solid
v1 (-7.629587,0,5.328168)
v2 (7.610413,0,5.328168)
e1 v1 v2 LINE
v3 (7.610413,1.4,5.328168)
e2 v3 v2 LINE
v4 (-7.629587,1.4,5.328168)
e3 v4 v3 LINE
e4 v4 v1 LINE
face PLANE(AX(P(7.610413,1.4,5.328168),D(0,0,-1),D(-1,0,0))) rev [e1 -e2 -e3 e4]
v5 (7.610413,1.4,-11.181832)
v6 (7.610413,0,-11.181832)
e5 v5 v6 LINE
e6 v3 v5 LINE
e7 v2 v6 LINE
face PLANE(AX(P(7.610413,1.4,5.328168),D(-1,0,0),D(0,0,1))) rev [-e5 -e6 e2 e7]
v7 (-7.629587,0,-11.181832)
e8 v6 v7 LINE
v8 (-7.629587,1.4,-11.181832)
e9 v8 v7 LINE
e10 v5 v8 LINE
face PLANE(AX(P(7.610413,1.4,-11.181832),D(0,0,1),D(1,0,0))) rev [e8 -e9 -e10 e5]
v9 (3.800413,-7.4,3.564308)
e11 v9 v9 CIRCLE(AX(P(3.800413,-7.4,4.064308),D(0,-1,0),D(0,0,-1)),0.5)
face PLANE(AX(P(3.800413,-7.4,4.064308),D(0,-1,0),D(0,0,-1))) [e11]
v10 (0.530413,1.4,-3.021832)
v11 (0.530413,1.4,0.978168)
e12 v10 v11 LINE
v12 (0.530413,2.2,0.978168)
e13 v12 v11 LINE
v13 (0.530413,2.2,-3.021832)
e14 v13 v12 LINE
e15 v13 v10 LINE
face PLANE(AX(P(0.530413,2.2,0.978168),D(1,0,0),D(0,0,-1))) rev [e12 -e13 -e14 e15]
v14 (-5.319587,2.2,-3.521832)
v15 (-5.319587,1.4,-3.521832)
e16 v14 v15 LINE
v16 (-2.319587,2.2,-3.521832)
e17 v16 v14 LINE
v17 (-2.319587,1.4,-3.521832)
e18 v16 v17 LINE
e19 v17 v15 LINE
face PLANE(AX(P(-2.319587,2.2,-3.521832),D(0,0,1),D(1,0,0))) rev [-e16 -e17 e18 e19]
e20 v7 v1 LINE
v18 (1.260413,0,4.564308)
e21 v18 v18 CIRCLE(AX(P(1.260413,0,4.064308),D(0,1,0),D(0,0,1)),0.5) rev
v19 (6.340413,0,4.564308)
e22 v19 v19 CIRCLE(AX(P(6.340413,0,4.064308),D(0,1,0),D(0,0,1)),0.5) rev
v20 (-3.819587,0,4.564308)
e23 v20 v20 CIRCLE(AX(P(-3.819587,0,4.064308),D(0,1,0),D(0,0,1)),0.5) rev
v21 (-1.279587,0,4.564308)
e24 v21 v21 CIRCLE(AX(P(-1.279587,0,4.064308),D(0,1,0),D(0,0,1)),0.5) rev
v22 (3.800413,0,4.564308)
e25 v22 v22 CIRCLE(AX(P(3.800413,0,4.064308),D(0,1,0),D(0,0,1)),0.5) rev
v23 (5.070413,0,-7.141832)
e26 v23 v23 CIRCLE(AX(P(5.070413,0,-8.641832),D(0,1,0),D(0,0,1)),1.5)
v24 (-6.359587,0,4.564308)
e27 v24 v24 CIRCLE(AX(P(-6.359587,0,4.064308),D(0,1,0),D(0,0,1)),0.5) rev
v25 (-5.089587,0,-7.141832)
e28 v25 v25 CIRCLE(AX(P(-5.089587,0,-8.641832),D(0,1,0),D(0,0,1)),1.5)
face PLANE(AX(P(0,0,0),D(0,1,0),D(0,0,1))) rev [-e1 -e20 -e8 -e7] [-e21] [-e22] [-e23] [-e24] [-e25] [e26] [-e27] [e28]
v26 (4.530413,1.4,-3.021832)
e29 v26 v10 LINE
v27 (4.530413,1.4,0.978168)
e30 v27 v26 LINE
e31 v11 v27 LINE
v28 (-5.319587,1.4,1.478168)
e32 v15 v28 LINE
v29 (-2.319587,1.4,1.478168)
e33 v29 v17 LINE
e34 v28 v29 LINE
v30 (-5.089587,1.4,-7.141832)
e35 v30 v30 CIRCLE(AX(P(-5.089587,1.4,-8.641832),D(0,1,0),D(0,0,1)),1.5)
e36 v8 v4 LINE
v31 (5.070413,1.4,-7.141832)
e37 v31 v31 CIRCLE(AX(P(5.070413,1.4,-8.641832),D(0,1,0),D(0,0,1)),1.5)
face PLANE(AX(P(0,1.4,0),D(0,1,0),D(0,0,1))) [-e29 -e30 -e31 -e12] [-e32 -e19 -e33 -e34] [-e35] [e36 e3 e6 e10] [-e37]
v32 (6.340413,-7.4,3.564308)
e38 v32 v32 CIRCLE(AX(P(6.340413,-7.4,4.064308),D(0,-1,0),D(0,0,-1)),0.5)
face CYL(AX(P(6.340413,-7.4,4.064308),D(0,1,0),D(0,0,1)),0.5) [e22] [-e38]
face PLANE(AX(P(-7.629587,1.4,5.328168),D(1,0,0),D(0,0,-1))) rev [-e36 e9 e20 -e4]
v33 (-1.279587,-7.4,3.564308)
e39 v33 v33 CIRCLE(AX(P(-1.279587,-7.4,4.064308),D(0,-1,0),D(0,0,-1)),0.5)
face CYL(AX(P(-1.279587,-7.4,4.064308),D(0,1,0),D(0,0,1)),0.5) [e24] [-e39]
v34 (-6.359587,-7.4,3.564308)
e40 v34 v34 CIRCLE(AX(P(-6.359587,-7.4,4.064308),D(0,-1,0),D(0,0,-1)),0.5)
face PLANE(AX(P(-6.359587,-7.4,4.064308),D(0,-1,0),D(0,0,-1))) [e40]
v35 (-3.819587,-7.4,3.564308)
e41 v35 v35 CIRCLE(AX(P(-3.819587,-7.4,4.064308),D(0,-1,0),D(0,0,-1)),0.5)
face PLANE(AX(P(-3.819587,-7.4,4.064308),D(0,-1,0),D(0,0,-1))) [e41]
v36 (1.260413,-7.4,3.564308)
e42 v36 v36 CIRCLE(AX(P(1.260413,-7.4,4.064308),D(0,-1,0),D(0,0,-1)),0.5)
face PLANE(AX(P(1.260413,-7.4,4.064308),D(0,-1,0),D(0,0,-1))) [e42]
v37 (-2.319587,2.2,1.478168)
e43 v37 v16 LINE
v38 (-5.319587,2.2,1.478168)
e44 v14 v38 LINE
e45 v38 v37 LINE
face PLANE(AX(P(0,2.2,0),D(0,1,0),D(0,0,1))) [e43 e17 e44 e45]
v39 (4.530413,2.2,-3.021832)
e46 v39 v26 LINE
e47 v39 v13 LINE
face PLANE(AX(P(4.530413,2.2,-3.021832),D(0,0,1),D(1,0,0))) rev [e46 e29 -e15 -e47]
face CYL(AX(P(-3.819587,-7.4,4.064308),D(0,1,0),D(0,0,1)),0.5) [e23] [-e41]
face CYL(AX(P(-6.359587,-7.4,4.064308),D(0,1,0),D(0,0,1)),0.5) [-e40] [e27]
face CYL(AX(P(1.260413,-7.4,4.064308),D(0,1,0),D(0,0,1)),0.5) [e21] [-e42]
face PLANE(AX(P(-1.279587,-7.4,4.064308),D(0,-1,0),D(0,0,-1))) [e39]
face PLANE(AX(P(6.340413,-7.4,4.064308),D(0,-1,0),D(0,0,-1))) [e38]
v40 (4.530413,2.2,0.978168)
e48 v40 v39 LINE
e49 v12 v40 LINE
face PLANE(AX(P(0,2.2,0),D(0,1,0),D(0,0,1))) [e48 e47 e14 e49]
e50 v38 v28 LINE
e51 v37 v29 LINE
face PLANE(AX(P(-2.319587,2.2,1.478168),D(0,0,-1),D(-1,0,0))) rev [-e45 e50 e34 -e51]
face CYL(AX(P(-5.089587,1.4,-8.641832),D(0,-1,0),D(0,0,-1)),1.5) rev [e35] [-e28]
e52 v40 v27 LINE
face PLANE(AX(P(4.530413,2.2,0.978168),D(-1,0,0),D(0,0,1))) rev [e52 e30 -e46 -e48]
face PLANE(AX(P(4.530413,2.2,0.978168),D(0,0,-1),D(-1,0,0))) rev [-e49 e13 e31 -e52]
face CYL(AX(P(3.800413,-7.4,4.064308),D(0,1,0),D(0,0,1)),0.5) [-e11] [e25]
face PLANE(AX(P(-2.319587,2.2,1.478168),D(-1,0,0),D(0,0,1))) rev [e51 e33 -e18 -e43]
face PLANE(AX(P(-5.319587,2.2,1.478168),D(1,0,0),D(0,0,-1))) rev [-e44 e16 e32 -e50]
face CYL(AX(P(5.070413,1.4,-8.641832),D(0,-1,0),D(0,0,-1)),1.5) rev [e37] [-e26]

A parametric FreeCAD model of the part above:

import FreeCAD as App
import Part
import Sketcher
from FreeCAD import Vector
Q = App.Units.Quantity

doc = App.newDocument("Part")
params = doc.addObject("Spreadsheet::Sheet", "Params")
for row, (alias, value) in enumerate([
    ("sketch1_diameter", "3 mm"),
    ("sketch1_width", "15.24 mm"),
    ("sketch1_height", "16.51 mm"),
    ("pad1_length", "1.4 mm"),
    ("sketch2_width", "3 mm"),
    ("sketch2_height", "5 mm"),
    ("pad2_length", "0.8 mm"),
    ("sketch3_width", "4 mm"),
    ("pad3_length", "0.8 mm"),
    ("sketch4_diameter", "1 mm"),
    ("pad4_length", "7.4 mm"),
], start=1):
    params.set(f"A{row}", alias)
    params.set(f"B{row}", "=" + value)
    params.setAlias(f"B{row}", alias)

body = doc.addObject("PartDesign::Body", "Body")

# Sketch on XZ plane
sketch1 = body.newObject("Sketcher::SketchObject", "Sketch")
sketch1.AttachmentSupport = (doc.getObject("XZ_Plane"), [""])
sketch1.MapMode = "FlatFace"
sketch1.addGeometry(Part.LineSegment(Vector(-7.6, -11.2, 0), Vector(-7.6, 5.3, 0)), False)
sketch1.addGeometry(Part.LineSegment(Vector(-7.6, 5.3, 0), Vector(7.6, 5.3, 0)), False)
sketch1.addGeometry(Part.LineSegment(Vector(7.6, 5.3, 0), Vector(7.6, -11.2, 0)), False)
sketch1.addGeometry(Part.LineSegment(Vector(7.6, -11.2, 0), Vector(-7.6, -11.2, 0)), False)
sketch1.addGeometry(Part.Circle(Vector(-5.1, -8.6, 0), Vector(0, 0, 1), 1.5), False)
sketch1.addGeometry(Part.Circle(Vector(5.1, -8.6, 0), Vector(0, 0, 1), 1.5), False)
sketch1.addConstraint(Sketcher.Constraint("Coincident", 0, 2, 1, 1))
sketch1.addConstraint(Sketcher.Constraint("Coincident", 1, 2, 2, 1))
sketch1.addConstraint(Sketcher.Constraint("Coincident", 2, 2, 3, 1))
sketch1.addConstraint(Sketcher.Constraint("Coincident", 3, 2, 0, 1))
sketch1.addConstraint(Sketcher.Constraint("Vertical", 0))
sketch1.addConstraint(Sketcher.Constraint("Horizontal", 1))
sketch1.addConstraint(Sketcher.Constraint("Vertical", 2))
sketch1.addConstraint(Sketcher.Constraint("Horizontal", 3))
sketch1.addConstraint(Sketcher.Constraint("Equal", 4, 5))
sketch1.addConstraint(Sketcher.Constraint("Horizontal", 4, 3, 5, 3))
sketch1.addConstraint(Sketcher.Constraint("Diameter", 4, Q("3 mm")))
sketch1.addConstraint(Sketcher.Constraint("DistanceX", 1, 1, 1, 2, Q("15.24 mm")))
sketch1.addConstraint(Sketcher.Constraint("DistanceY", 0, 1, 0, 2, Q("16.51 mm")))
sketch1.addConstraint(Sketcher.Constraint("DistanceX", 0, 2, 5, 3, Q("12.7 mm")))
sketch1.addConstraint(Sketcher.Constraint("DistanceX", 4, 3, 1, 2, Q("12.7 mm")))
sketch1.addConstraint(Sketcher.Constraint("DistanceY", 4, 3, 0, 2, Q("13.97 mm")))
sketch1.addConstraint(Sketcher.Constraint("DistanceY", 4, 3, -1, 1, Q("8.641832 mm")))
sketch1.addConstraint(Sketcher.Constraint("DistanceX", 4, 3, -1, 1, Q("5.089587 mm")))
sketch1.setExpression("Constraints[10]", "Params.sketch1_diameter")
sketch1.setExpression("Constraints[11]", "Params.sketch1_width")
sketch1.setExpression("Constraints[12]", "Params.sketch1_height")
pad1 = body.newObject("PartDesign::Pad", "Pad")
pad1.Profile = sketch1
pad1.setExpression("Length", "Params.pad1_length")
pad1.Reversed = True

# Sketch on XZ plane
sketch2 = body.newObject("Sketcher::SketchObject", "Sketch001")
sketch2.AttachmentSupport = (doc.getObject("XZ_Plane"), [""])
sketch2.MapMode = "FlatFace"
sketch2.AttachmentOffset = App.Placement(Vector(0, 0, -1.4), App.Rotation())
sketch2.addGeometry(Part.LineSegment(Vector(-5.3, -3.5, 0), Vector(-5.3, 1.5, 0)), False)
sketch2.addGeometry(Part.LineSegment(Vector(-5.3, 1.5, 0), Vector(-2.3, 1.5, 0)), False)
sketch2.addGeometry(Part.LineSegment(Vector(-2.3, 1.5, 0), Vector(-2.3, -3.5, 0)), False)
sketch2.addGeometry(Part.LineSegment(Vector(-2.3, -3.5, 0), Vector(-5.3, -3.5, 0)), False)
sketch2.addConstraint(Sketcher.Constraint("Coincident", 0, 2, 1, 1))
sketch2.addConstraint(Sketcher.Constraint("Coincident", 1, 2, 2, 1))
sketch2.addConstraint(Sketcher.Constraint("Coincident", 2, 2, 3, 1))
sketch2.addConstraint(Sketcher.Constraint("Coincident", 3, 2, 0, 1))
sketch2.addConstraint(Sketcher.Constraint("Vertical", 0))
sketch2.addConstraint(Sketcher.Constraint("Horizontal", 1))
sketch2.addConstraint(Sketcher.Constraint("Vertical", 2))
sketch2.addConstraint(Sketcher.Constraint("Horizontal", 3))
sketch2.addConstraint(Sketcher.Constraint("DistanceX", 1, 1, 1, 2, Q("3 mm")))
sketch2.addConstraint(Sketcher.Constraint("DistanceY", 0, 1, 0, 2, Q("5 mm")))
sketch2.addConstraint(Sketcher.Constraint("DistanceY", -1, 1, 0, 2, Q("1.478168 mm")))
sketch2.addConstraint(Sketcher.Constraint("DistanceX", 0, 2, -1, 1, Q("5.319587 mm")))
sketch2.setExpression("Constraints[8]", "Params.sketch2_width")
sketch2.setExpression("Constraints[9]", "Params.sketch2_height")
pad2 = body.newObject("PartDesign::Pad", "Pad001")
pad2.Profile = sketch2
pad2.setExpression("Length", "Params.pad2_length")
pad2.Reversed = True

# Sketch on XZ plane
sketch3 = body.newObject("Sketcher::SketchObject", "Sketch002")
sketch3.AttachmentSupport = (doc.getObject("XZ_Plane"), [""])
sketch3.MapMode = "FlatFace"
sketch3.AttachmentOffset = App.Placement(Vector(0, 0, -1.4), App.Rotation())
sketch3.addGeometry(Part.LineSegment(Vector(0.5, -3, 0), Vector(0.5, 1, 0)), False)
sketch3.addGeometry(Part.LineSegment(Vector(0.5, 1, 0), Vector(4.5, 1, 0)), False)
sketch3.addGeometry(Part.LineSegment(Vector(4.5, 1, 0), Vector(4.5, -3, 0)), False)
sketch3.addGeometry(Part.LineSegment(Vector(4.5, -3, 0), Vector(0.5, -3, 0)), False)
sketch3.addConstraint(Sketcher.Constraint("Coincident", 0, 2, 1, 1))
sketch3.addConstraint(Sketcher.Constraint("Coincident", 1, 2, 2, 1))
sketch3.addConstraint(Sketcher.Constraint("Coincident", 2, 2, 3, 1))
sketch3.addConstraint(Sketcher.Constraint("Coincident", 3, 2, 0, 1))
sketch3.addConstraint(Sketcher.Constraint("Vertical", 0))
sketch3.addConstraint(Sketcher.Constraint("Horizontal", 1))
sketch3.addConstraint(Sketcher.Constraint("Vertical", 2))
sketch3.addConstraint(Sketcher.Constraint("Horizontal", 3))
sketch3.addConstraint(Sketcher.Constraint("Equal", 3, 0))
sketch3.addConstraint(Sketcher.Constraint("DistanceX", 1, 1, 1, 2, Q("4 mm")))
sketch3.addConstraint(Sketcher.Constraint("DistanceY", -1, 1, 0, 2, Q("0.978168 mm")))
sketch3.addConstraint(Sketcher.Constraint("DistanceX", -1, 1, 0, 2, Q("0.530413 mm")))
sketch3.setExpression("Constraints[9]", "Params.sketch3_width")
pad3 = body.newObject("PartDesign::Pad", "Pad002")
pad3.Profile = sketch3
pad3.setExpression("Length", "Params.pad3_length")
pad3.Reversed = True

# Sketch on XZ plane
sketch4 = body.newObject("Sketcher::SketchObject", "Sketch003")
sketch4.AttachmentSupport = (doc.getObject("XZ_Plane"), [""])
sketch4.MapMode = "FlatFace"
sketch4.addGeometry(Part.Circle(Vector(-6.4, 4.1, 0), Vector(0, 0, 1), 0.5), False)
sketch4.addGeometry(Part.Circle(Vector(-3.8, 4.1, 0), Vector(0, 0, 1), 0.5), False)
sketch4.addGeometry(Part.Circle(Vector(-1.3, 4.1, 0), Vector(0, 0, 1), 0.5), False)
sketch4.addGeometry(Part.Circle(Vector(1.3, 4.1, 0), Vector(0, 0, 1), 0.5), False)
sketch4.addGeometry(Part.Circle(Vector(3.8, 4.1, 0), Vector(0, 0, 1), 0.5), False)
sketch4.addGeometry(Part.Circle(Vector(6.3, 4.1, 0), Vector(0, 0, 1), 0.5), False)
sketch4.addConstraint(Sketcher.Constraint("Equal", 0, 1))
sketch4.addConstraint(Sketcher.Constraint("Equal", 1, 2))
sketch4.addConstraint(Sketcher.Constraint("Equal", 2, 3))
sketch4.addConstraint(Sketcher.Constraint("Equal", 3, 4))
sketch4.addConstraint(Sketcher.Constraint("Equal", 4, 5))
sketch4.addConstraint(Sketcher.Constraint("Horizontal", 0, 3, 1, 3))
sketch4.addConstraint(Sketcher.Constraint("Horizontal", 1, 3, 2, 3))
sketch4.addConstraint(Sketcher.Constraint("Horizontal", 2, 3, 3, 3))
sketch4.addConstraint(Sketcher.Constraint("Horizontal", 3, 3, 4, 3))
sketch4.addConstraint(Sketcher.Constraint("Horizontal", 4, 3, 5, 3))
sketch4.addConstraint(Sketcher.Constraint("Diameter", 0, Q("1 mm")))
sketch4.addConstraint(Sketcher.Constraint("DistanceX", 0, 3, 5, 3, Q("12.7 mm")))
sketch4.addConstraint(Sketcher.Constraint("DistanceX", 0, 3, 1, 3, Q("2.54 mm")))
sketch4.addConstraint(Sketcher.Constraint("DistanceX", 1, 3, 2, 3, Q("2.54 mm")))
sketch4.addConstraint(Sketcher.Constraint("DistanceX", 2, 3, 3, 3, Q("2.54 mm")))
sketch4.addConstraint(Sketcher.Constraint("DistanceX", 3, 3, 4, 3, Q("2.54 mm")))
sketch4.addConstraint(Sketcher.Constraint("DistanceX", 0, 3, -1, 1, Q("6.359587 mm")))
sketch4.addConstraint(Sketcher.Constraint("DistanceY", -1, 1, 0, 3, Q("4.064308 mm")))
sketch4.setExpression("Constraints[10]", "Params.sketch4_diameter")
pad4 = body.newObject("PartDesign::Pad", "Pad003")
pad4.Profile = sketch4
pad4.setExpression("Length", "Params.pad4_length")

doc.recompute()
